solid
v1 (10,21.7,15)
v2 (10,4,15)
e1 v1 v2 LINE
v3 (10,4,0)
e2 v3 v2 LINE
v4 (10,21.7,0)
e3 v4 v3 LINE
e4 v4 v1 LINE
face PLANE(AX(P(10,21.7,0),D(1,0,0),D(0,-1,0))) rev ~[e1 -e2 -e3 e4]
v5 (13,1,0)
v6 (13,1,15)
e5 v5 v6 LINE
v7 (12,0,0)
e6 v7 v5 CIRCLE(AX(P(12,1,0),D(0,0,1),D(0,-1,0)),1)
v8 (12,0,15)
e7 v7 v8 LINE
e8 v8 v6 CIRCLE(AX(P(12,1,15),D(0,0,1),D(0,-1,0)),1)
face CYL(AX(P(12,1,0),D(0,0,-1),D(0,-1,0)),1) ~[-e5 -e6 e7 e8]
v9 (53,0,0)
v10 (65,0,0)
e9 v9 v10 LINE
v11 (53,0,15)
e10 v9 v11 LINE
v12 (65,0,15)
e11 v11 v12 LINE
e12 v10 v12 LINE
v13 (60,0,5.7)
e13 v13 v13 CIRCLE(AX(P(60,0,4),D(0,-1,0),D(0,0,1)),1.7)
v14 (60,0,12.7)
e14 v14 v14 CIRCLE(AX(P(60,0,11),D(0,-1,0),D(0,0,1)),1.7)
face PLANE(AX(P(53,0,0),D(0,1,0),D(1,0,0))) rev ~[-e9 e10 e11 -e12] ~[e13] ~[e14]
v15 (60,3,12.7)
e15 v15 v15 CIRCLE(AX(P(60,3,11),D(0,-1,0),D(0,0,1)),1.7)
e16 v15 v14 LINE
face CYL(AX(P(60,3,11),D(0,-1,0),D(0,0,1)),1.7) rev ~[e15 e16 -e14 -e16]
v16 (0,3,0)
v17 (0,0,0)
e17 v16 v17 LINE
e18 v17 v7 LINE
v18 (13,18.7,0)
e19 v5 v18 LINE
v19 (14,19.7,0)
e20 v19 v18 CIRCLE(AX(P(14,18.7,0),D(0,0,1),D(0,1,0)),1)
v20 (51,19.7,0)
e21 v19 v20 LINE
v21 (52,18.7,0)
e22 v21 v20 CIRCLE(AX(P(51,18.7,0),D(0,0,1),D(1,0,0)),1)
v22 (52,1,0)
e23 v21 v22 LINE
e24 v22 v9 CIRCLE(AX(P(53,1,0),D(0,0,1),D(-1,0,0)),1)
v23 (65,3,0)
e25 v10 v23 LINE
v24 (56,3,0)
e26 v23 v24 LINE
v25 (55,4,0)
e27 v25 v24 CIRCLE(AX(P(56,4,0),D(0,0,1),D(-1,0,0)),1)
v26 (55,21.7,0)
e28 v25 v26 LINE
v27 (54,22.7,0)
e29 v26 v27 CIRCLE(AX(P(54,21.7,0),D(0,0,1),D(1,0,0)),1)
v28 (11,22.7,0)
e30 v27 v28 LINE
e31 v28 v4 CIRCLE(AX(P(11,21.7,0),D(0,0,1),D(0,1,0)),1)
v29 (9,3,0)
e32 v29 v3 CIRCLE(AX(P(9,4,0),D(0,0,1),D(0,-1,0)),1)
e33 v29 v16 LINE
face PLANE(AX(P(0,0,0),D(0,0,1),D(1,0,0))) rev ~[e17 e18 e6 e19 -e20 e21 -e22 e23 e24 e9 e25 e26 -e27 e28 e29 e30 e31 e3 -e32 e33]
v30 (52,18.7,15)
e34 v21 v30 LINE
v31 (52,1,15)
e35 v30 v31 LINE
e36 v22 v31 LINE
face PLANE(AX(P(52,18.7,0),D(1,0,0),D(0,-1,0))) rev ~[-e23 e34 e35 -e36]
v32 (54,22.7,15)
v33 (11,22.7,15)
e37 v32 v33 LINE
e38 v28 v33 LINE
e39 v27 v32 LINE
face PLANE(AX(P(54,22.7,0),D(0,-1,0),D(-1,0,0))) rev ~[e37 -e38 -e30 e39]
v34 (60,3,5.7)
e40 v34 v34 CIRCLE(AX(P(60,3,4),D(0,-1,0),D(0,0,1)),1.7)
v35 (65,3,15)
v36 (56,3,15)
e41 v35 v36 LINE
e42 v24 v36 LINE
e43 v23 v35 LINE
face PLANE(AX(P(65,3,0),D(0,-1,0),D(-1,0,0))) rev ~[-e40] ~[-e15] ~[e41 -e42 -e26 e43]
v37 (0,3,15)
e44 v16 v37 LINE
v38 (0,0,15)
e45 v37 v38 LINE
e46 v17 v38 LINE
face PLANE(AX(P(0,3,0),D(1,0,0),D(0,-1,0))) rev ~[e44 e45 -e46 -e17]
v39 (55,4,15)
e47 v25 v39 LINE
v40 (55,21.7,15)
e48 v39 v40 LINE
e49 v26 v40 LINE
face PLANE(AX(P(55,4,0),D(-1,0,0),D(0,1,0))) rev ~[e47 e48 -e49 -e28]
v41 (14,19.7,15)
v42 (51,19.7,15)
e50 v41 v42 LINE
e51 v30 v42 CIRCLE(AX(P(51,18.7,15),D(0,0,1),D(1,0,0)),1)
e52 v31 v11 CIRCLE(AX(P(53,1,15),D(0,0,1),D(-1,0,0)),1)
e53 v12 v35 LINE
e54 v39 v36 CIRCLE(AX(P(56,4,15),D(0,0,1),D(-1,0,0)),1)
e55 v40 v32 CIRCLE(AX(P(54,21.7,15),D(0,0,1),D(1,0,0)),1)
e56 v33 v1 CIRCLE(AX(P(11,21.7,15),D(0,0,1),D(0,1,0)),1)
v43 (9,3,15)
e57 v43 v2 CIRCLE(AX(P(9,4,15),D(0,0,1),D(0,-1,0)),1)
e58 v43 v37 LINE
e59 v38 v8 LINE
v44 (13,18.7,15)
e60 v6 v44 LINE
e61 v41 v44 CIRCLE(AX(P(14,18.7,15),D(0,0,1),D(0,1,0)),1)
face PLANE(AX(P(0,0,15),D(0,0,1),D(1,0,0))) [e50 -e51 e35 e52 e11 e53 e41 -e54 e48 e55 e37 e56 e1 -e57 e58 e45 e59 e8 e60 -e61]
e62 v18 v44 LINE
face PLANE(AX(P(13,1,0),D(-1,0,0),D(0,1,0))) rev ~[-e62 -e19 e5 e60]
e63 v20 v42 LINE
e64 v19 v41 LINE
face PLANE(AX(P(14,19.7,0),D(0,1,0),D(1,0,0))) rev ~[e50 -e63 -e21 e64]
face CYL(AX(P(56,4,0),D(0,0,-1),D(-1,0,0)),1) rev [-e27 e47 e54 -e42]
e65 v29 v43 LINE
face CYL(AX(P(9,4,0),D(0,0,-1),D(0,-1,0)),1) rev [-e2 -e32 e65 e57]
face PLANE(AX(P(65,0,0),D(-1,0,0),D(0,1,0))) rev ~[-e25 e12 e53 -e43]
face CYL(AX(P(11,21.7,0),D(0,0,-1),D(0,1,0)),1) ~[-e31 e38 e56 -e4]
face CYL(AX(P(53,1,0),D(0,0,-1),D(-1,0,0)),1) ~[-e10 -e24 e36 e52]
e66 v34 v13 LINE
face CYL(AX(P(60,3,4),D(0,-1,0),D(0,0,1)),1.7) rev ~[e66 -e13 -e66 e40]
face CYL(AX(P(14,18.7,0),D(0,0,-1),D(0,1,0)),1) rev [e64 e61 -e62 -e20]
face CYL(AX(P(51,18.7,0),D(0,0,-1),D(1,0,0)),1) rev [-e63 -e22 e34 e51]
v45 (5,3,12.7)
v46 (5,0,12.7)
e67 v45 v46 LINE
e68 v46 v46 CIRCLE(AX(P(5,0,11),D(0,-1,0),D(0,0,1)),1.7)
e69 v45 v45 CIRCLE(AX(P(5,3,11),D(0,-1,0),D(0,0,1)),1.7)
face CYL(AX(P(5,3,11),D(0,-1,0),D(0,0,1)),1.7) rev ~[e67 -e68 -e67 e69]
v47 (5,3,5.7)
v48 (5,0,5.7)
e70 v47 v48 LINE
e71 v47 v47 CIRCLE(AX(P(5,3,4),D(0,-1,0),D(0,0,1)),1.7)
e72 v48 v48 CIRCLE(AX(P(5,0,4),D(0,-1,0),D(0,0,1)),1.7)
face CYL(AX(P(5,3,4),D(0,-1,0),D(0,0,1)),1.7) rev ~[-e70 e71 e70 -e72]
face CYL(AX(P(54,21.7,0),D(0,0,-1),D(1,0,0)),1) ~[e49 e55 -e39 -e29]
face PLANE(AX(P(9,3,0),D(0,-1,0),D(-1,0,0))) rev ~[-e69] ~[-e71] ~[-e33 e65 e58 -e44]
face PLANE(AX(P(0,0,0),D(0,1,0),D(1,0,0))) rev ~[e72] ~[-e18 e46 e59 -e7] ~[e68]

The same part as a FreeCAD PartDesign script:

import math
import FreeCAD as App
import Part
import Sketcher

V = App.Vector
Q = App.Units.Quantity

doc = App.newDocument("Part")
params = doc.addObject("Spreadsheet::Sheet", "Params")
for row, (alias, value) in enumerate([
    ("sketch1_radius", "1 mm"),
    ("sketch1_height", "3 mm"),
    ("pad1_length", "15 mm"),
    ("sketch2_diameter", "3.4 mm"),
    ("hole_diameter", "3.4 mm"),
], start=1):
    params.set(f"A{row}", alias)
    params.set(f"B{row}", "=" + value)
    params.setAlias(f"B{row}", alias)

body = doc.addObject("PartDesign::Body", "Body")

# Sketch on XY plane
sketch1 = doc.addObject("Sketcher::SketchObject", "Sketch")
body.addObject(sketch1)
sketch1.AttachmentSupport = (doc.XY_Plane, [""])
sketch1.MapMode = "FlatFace"
sketch1.addGeometry([
    Part.LineSegment(V(0, 3, 0), V(0, 0, 0)),  # 0
    Part.LineSegment(V(0, 0, 0), V(12, 0, 0)),  # 1
    Part.ArcOfCircle(Part.Circle(V(12, 1, 0), V(0, 0, 1), 1), math.radians(-90), math.radians(0)),  # 2
    Part.LineSegment(V(13, 1, 0), V(13, 18.7, 0)),  # 3
    Part.ArcOfCircle(Part.Circle(V(14, 18.7, 0), V(0, 0, 1), 1), math.radians(90), math.radians(180)),  # 4
    Part.LineSegment(V(14, 19.7, 0), V(51, 19.7, 0)),  # 5
    Part.ArcOfCircle(Part.Circle(V(51, 18.7, 0), V(0, 0, 1), 1), math.radians(0), math.radians(90)),  # 6
    Part.LineSegment(V(52, 18.7, 0), V(52, 1, 0)),  # 7
    Part.ArcOfCircle(Part.Circle(V(53, 1, 0), V(0, 0, 1), 1), math.radians(180), math.radians(270)),  # 8
    Part.LineSegment(V(53, 0, 0), V(65, 0, 0)),  # 9
    Part.LineSegment(V(65, 0, 0), V(65, 3, 0)),  # 10
    Part.LineSegment(V(65, 3, 0), V(56, 3, 0)),  # 11
    Part.ArcOfCircle(Part.Circle(V(56, 4, 0), V(0, 0, 1), 1), math.radians(180), math.radians(270)),  # 12
    Part.LineSegment(V(55, 4, 0), V(55, 21.7, 0)),  # 13
    Part.ArcOfCircle(Part.Circle(V(54, 21.7, 0), V(0, 0, 1), 1), math.radians(0), math.radians(90)),  # 14
    Part.LineSegment(V(54, 22.7, 0), V(11, 22.7, 0)),  # 15
    Part.ArcOfCircle(Part.Circle(V(11, 21.7, 0), V(0, 0, 1), 1), math.radians(90), math.radians(180)),  # 16
    Part.LineSegment(V(10, 21.7, 0), V(10, 4, 0)),  # 17
    Part.ArcOfCircle(Part.Circle(V(9, 4, 0), V(0, 0, 1), 1), math.radians(-90), math.radians(0)),  # 18
    Part.LineSegment(V(9, 3, 0), V(0, 3, 0)),  # 19
], False)
sketch1.addConstraint([
    Sketcher.Constraint("Coincident", 0, 2, 1, 1),
    Sketcher.Constraint("Tangent", 1, 2, 2, 1),
    Sketcher.Constraint("Tangent", 2, 2, 3, 1),
    Sketcher.Constraint("Tangent", 3, 2, 4, 2),
    Sketcher.Constraint("Tangent", 4, 1, 5, 1),
    Sketcher.Constraint("Tangent", 5, 2, 6, 2),
    Sketcher.Constraint("Tangent", 6, 1, 7, 1),
    Sketcher.Constraint("Tangent", 7, 2, 8, 1),
    Sketcher.Constraint("Tangent", 8, 2, 9, 1),
    Sketcher.Constraint("Coincident", 9, 2, 10, 1),
    Sketcher.Constraint("Coincident", 10, 2, 11, 1),
    Sketcher.Constraint("Tangent", 11, 2, 12, 2),
    Sketcher.Constraint("Tangent", 12, 1, 13, 1),
    Sketcher.Constraint("Tangent", 13, 2, 14, 1),
    Sketcher.Constraint("Tangent", 14, 2, 15, 1),
    Sketcher.Constraint("Tangent", 15, 2, 16, 1),
    Sketcher.Constraint("Tangent", 16, 2, 17, 1),
    Sketcher.Constraint("Tangent", 17, 2, 18, 2),
    Sketcher.Constraint("Tangent", 18, 1, 19, 1),
    Sketcher.Constraint("Coincident", 19, 2, 0, 1),
    Sketcher.Constraint("Vertical", 0),
    Sketcher.Constraint("Horizontal", 1),
    Sketcher.Constraint("Vertical", 3),
    Sketcher.Constraint("Horizontal", 5),
    Sketcher.Constraint("Vertical", 7),
    Sketcher.Constraint("Horizontal", 9),
    Sketcher.Constraint("Vertical", 10),
    Sketcher.Constraint("Horizontal", 11),
    Sketcher.Constraint("Vertical", 13),
    Sketcher.Constraint("Horizontal", 15),
    Sketcher.Constraint("Vertical", 17),
    Sketcher.Constraint("Horizontal", 19),
    Sketcher.Constraint("Coincident", 0, 2, -1, 1),
    Sketcher.Constraint("Equal", 2, 4),
    Sketcher.Constraint("Equal", 4, 6),
    Sketcher.Constraint("Equal", 6, 8),
    Sketcher.Constraint("Equal", 8, 12),
    Sketcher.Constraint("Equal", 12, 14),
    Sketcher.Constraint("Equal", 14, 16),
    Sketcher.Constraint("Equal", 16, 18),
    Sketcher.Constraint("PointOnObject", 8, 2, -1),
    Sketcher.Constraint("Horizontal", 12, 3, 18, 3),
    Sketcher.Constraint("Equal", 1, 9),
    Sketcher.Constraint("Equal", 11, 19),
    Sketcher.Constraint("Equal", 7, 13),
    Sketcher.Constraint("Radius", 2, Q("1 mm")),
    Sketcher.Constraint("DistanceY", 0, 2, 0, 1, Q("3 mm")),
    Sketcher.Constraint("DistanceX", -1, 1, 16, 2, Q("10 mm")),
    Sketcher.Constraint("DistanceX", 2, 3, 6, 3, Q("39 mm")),
    Sketcher.Constraint("DistanceX", 8, 3, 12, 3, Q("3 mm")),
    Sketcher.Constraint("DistanceY", -1, 1, 4, 1, Q("19.7 mm")),
])
sketch1.setExpression("Constraints[45]", "Params.sketch1_radius")
sketch1.setExpression("Constraints[46]", "Params.sketch1_height")
pad1 = doc.addObject("PartDesign::Pad", "Pad")
body.addObject(pad1)
pad1.Profile = sketch1
pad1.setExpression("Length", "Params.pad1_length")

# Sketch on XZ plane
sketch2 = doc.addObject("Sketcher::SketchObject", "Sketch001")
body.addObject(sketch2)
sketch2.AttachmentSupport = (doc.XZ_Plane, [""])
sketch2.MapMode = "FlatFace"
sketch2.AttachmentOffset = App.Placement(V(0, 0, -3), App.Rotation())
sketch2.addGeometry([
    Part.Circle(V(60, 4, 0), V(0, 0, 1), 1.7),
    Part.Circle(V(60, 11, 0), V(0, 0, 1), 1.7),
    Part.Circle(V(5, 11, 0), V(0, 0, 1), 1.7),
    Part.Circle(V(5, 4, 0), V(0, 0, 1), 1.7),
], False)
sketch2.addConstraint([
    Sketcher.Constraint("Equal", 0, 1),
    Sketcher.Constraint("Equal", 1, 2),
    Sketcher.Constraint("Equal", 2, 3),
    Sketcher.Constraint("Horizontal", 1, 3, 2, 3),
    Sketcher.Constraint("Horizontal", 0, 3, 3, 3),
    Sketcher.Constraint("Vertical", 0, 3, 1, 3),
    Sketcher.Constraint("Vertical", 2, 3, 3, 3),
    Sketcher.Constraint("Diameter", 0, Q("3.4 mm")),
    Sketcher.Constraint("DistanceX", -1, 1, 0, 3, Q("60 mm")),
    Sketcher.Constraint("DistanceY", -1, 1, 0, 3, Q("4 mm")),
    Sketcher.Constraint("DistanceY", -1, 1, 1, 3, Q("11 mm")),
    Sketcher.Constraint("DistanceX", -1, 1, 2, 3, Q("5 mm")),
])
sketch2.setExpression("Constraints[7]", "Params.sketch2_diameter")
doc.recompute()
hole = doc.addObject("PartDesign::Hole", "Hole")
body.addObject(hole)
hole.Profile = sketch2
hole.ThreadType = "None"
hole.setExpression("Diameter", "Params.hole_diameter")
hole.DepthType = "ThroughAll"
hole.Reversed = True

doc.recompute()
